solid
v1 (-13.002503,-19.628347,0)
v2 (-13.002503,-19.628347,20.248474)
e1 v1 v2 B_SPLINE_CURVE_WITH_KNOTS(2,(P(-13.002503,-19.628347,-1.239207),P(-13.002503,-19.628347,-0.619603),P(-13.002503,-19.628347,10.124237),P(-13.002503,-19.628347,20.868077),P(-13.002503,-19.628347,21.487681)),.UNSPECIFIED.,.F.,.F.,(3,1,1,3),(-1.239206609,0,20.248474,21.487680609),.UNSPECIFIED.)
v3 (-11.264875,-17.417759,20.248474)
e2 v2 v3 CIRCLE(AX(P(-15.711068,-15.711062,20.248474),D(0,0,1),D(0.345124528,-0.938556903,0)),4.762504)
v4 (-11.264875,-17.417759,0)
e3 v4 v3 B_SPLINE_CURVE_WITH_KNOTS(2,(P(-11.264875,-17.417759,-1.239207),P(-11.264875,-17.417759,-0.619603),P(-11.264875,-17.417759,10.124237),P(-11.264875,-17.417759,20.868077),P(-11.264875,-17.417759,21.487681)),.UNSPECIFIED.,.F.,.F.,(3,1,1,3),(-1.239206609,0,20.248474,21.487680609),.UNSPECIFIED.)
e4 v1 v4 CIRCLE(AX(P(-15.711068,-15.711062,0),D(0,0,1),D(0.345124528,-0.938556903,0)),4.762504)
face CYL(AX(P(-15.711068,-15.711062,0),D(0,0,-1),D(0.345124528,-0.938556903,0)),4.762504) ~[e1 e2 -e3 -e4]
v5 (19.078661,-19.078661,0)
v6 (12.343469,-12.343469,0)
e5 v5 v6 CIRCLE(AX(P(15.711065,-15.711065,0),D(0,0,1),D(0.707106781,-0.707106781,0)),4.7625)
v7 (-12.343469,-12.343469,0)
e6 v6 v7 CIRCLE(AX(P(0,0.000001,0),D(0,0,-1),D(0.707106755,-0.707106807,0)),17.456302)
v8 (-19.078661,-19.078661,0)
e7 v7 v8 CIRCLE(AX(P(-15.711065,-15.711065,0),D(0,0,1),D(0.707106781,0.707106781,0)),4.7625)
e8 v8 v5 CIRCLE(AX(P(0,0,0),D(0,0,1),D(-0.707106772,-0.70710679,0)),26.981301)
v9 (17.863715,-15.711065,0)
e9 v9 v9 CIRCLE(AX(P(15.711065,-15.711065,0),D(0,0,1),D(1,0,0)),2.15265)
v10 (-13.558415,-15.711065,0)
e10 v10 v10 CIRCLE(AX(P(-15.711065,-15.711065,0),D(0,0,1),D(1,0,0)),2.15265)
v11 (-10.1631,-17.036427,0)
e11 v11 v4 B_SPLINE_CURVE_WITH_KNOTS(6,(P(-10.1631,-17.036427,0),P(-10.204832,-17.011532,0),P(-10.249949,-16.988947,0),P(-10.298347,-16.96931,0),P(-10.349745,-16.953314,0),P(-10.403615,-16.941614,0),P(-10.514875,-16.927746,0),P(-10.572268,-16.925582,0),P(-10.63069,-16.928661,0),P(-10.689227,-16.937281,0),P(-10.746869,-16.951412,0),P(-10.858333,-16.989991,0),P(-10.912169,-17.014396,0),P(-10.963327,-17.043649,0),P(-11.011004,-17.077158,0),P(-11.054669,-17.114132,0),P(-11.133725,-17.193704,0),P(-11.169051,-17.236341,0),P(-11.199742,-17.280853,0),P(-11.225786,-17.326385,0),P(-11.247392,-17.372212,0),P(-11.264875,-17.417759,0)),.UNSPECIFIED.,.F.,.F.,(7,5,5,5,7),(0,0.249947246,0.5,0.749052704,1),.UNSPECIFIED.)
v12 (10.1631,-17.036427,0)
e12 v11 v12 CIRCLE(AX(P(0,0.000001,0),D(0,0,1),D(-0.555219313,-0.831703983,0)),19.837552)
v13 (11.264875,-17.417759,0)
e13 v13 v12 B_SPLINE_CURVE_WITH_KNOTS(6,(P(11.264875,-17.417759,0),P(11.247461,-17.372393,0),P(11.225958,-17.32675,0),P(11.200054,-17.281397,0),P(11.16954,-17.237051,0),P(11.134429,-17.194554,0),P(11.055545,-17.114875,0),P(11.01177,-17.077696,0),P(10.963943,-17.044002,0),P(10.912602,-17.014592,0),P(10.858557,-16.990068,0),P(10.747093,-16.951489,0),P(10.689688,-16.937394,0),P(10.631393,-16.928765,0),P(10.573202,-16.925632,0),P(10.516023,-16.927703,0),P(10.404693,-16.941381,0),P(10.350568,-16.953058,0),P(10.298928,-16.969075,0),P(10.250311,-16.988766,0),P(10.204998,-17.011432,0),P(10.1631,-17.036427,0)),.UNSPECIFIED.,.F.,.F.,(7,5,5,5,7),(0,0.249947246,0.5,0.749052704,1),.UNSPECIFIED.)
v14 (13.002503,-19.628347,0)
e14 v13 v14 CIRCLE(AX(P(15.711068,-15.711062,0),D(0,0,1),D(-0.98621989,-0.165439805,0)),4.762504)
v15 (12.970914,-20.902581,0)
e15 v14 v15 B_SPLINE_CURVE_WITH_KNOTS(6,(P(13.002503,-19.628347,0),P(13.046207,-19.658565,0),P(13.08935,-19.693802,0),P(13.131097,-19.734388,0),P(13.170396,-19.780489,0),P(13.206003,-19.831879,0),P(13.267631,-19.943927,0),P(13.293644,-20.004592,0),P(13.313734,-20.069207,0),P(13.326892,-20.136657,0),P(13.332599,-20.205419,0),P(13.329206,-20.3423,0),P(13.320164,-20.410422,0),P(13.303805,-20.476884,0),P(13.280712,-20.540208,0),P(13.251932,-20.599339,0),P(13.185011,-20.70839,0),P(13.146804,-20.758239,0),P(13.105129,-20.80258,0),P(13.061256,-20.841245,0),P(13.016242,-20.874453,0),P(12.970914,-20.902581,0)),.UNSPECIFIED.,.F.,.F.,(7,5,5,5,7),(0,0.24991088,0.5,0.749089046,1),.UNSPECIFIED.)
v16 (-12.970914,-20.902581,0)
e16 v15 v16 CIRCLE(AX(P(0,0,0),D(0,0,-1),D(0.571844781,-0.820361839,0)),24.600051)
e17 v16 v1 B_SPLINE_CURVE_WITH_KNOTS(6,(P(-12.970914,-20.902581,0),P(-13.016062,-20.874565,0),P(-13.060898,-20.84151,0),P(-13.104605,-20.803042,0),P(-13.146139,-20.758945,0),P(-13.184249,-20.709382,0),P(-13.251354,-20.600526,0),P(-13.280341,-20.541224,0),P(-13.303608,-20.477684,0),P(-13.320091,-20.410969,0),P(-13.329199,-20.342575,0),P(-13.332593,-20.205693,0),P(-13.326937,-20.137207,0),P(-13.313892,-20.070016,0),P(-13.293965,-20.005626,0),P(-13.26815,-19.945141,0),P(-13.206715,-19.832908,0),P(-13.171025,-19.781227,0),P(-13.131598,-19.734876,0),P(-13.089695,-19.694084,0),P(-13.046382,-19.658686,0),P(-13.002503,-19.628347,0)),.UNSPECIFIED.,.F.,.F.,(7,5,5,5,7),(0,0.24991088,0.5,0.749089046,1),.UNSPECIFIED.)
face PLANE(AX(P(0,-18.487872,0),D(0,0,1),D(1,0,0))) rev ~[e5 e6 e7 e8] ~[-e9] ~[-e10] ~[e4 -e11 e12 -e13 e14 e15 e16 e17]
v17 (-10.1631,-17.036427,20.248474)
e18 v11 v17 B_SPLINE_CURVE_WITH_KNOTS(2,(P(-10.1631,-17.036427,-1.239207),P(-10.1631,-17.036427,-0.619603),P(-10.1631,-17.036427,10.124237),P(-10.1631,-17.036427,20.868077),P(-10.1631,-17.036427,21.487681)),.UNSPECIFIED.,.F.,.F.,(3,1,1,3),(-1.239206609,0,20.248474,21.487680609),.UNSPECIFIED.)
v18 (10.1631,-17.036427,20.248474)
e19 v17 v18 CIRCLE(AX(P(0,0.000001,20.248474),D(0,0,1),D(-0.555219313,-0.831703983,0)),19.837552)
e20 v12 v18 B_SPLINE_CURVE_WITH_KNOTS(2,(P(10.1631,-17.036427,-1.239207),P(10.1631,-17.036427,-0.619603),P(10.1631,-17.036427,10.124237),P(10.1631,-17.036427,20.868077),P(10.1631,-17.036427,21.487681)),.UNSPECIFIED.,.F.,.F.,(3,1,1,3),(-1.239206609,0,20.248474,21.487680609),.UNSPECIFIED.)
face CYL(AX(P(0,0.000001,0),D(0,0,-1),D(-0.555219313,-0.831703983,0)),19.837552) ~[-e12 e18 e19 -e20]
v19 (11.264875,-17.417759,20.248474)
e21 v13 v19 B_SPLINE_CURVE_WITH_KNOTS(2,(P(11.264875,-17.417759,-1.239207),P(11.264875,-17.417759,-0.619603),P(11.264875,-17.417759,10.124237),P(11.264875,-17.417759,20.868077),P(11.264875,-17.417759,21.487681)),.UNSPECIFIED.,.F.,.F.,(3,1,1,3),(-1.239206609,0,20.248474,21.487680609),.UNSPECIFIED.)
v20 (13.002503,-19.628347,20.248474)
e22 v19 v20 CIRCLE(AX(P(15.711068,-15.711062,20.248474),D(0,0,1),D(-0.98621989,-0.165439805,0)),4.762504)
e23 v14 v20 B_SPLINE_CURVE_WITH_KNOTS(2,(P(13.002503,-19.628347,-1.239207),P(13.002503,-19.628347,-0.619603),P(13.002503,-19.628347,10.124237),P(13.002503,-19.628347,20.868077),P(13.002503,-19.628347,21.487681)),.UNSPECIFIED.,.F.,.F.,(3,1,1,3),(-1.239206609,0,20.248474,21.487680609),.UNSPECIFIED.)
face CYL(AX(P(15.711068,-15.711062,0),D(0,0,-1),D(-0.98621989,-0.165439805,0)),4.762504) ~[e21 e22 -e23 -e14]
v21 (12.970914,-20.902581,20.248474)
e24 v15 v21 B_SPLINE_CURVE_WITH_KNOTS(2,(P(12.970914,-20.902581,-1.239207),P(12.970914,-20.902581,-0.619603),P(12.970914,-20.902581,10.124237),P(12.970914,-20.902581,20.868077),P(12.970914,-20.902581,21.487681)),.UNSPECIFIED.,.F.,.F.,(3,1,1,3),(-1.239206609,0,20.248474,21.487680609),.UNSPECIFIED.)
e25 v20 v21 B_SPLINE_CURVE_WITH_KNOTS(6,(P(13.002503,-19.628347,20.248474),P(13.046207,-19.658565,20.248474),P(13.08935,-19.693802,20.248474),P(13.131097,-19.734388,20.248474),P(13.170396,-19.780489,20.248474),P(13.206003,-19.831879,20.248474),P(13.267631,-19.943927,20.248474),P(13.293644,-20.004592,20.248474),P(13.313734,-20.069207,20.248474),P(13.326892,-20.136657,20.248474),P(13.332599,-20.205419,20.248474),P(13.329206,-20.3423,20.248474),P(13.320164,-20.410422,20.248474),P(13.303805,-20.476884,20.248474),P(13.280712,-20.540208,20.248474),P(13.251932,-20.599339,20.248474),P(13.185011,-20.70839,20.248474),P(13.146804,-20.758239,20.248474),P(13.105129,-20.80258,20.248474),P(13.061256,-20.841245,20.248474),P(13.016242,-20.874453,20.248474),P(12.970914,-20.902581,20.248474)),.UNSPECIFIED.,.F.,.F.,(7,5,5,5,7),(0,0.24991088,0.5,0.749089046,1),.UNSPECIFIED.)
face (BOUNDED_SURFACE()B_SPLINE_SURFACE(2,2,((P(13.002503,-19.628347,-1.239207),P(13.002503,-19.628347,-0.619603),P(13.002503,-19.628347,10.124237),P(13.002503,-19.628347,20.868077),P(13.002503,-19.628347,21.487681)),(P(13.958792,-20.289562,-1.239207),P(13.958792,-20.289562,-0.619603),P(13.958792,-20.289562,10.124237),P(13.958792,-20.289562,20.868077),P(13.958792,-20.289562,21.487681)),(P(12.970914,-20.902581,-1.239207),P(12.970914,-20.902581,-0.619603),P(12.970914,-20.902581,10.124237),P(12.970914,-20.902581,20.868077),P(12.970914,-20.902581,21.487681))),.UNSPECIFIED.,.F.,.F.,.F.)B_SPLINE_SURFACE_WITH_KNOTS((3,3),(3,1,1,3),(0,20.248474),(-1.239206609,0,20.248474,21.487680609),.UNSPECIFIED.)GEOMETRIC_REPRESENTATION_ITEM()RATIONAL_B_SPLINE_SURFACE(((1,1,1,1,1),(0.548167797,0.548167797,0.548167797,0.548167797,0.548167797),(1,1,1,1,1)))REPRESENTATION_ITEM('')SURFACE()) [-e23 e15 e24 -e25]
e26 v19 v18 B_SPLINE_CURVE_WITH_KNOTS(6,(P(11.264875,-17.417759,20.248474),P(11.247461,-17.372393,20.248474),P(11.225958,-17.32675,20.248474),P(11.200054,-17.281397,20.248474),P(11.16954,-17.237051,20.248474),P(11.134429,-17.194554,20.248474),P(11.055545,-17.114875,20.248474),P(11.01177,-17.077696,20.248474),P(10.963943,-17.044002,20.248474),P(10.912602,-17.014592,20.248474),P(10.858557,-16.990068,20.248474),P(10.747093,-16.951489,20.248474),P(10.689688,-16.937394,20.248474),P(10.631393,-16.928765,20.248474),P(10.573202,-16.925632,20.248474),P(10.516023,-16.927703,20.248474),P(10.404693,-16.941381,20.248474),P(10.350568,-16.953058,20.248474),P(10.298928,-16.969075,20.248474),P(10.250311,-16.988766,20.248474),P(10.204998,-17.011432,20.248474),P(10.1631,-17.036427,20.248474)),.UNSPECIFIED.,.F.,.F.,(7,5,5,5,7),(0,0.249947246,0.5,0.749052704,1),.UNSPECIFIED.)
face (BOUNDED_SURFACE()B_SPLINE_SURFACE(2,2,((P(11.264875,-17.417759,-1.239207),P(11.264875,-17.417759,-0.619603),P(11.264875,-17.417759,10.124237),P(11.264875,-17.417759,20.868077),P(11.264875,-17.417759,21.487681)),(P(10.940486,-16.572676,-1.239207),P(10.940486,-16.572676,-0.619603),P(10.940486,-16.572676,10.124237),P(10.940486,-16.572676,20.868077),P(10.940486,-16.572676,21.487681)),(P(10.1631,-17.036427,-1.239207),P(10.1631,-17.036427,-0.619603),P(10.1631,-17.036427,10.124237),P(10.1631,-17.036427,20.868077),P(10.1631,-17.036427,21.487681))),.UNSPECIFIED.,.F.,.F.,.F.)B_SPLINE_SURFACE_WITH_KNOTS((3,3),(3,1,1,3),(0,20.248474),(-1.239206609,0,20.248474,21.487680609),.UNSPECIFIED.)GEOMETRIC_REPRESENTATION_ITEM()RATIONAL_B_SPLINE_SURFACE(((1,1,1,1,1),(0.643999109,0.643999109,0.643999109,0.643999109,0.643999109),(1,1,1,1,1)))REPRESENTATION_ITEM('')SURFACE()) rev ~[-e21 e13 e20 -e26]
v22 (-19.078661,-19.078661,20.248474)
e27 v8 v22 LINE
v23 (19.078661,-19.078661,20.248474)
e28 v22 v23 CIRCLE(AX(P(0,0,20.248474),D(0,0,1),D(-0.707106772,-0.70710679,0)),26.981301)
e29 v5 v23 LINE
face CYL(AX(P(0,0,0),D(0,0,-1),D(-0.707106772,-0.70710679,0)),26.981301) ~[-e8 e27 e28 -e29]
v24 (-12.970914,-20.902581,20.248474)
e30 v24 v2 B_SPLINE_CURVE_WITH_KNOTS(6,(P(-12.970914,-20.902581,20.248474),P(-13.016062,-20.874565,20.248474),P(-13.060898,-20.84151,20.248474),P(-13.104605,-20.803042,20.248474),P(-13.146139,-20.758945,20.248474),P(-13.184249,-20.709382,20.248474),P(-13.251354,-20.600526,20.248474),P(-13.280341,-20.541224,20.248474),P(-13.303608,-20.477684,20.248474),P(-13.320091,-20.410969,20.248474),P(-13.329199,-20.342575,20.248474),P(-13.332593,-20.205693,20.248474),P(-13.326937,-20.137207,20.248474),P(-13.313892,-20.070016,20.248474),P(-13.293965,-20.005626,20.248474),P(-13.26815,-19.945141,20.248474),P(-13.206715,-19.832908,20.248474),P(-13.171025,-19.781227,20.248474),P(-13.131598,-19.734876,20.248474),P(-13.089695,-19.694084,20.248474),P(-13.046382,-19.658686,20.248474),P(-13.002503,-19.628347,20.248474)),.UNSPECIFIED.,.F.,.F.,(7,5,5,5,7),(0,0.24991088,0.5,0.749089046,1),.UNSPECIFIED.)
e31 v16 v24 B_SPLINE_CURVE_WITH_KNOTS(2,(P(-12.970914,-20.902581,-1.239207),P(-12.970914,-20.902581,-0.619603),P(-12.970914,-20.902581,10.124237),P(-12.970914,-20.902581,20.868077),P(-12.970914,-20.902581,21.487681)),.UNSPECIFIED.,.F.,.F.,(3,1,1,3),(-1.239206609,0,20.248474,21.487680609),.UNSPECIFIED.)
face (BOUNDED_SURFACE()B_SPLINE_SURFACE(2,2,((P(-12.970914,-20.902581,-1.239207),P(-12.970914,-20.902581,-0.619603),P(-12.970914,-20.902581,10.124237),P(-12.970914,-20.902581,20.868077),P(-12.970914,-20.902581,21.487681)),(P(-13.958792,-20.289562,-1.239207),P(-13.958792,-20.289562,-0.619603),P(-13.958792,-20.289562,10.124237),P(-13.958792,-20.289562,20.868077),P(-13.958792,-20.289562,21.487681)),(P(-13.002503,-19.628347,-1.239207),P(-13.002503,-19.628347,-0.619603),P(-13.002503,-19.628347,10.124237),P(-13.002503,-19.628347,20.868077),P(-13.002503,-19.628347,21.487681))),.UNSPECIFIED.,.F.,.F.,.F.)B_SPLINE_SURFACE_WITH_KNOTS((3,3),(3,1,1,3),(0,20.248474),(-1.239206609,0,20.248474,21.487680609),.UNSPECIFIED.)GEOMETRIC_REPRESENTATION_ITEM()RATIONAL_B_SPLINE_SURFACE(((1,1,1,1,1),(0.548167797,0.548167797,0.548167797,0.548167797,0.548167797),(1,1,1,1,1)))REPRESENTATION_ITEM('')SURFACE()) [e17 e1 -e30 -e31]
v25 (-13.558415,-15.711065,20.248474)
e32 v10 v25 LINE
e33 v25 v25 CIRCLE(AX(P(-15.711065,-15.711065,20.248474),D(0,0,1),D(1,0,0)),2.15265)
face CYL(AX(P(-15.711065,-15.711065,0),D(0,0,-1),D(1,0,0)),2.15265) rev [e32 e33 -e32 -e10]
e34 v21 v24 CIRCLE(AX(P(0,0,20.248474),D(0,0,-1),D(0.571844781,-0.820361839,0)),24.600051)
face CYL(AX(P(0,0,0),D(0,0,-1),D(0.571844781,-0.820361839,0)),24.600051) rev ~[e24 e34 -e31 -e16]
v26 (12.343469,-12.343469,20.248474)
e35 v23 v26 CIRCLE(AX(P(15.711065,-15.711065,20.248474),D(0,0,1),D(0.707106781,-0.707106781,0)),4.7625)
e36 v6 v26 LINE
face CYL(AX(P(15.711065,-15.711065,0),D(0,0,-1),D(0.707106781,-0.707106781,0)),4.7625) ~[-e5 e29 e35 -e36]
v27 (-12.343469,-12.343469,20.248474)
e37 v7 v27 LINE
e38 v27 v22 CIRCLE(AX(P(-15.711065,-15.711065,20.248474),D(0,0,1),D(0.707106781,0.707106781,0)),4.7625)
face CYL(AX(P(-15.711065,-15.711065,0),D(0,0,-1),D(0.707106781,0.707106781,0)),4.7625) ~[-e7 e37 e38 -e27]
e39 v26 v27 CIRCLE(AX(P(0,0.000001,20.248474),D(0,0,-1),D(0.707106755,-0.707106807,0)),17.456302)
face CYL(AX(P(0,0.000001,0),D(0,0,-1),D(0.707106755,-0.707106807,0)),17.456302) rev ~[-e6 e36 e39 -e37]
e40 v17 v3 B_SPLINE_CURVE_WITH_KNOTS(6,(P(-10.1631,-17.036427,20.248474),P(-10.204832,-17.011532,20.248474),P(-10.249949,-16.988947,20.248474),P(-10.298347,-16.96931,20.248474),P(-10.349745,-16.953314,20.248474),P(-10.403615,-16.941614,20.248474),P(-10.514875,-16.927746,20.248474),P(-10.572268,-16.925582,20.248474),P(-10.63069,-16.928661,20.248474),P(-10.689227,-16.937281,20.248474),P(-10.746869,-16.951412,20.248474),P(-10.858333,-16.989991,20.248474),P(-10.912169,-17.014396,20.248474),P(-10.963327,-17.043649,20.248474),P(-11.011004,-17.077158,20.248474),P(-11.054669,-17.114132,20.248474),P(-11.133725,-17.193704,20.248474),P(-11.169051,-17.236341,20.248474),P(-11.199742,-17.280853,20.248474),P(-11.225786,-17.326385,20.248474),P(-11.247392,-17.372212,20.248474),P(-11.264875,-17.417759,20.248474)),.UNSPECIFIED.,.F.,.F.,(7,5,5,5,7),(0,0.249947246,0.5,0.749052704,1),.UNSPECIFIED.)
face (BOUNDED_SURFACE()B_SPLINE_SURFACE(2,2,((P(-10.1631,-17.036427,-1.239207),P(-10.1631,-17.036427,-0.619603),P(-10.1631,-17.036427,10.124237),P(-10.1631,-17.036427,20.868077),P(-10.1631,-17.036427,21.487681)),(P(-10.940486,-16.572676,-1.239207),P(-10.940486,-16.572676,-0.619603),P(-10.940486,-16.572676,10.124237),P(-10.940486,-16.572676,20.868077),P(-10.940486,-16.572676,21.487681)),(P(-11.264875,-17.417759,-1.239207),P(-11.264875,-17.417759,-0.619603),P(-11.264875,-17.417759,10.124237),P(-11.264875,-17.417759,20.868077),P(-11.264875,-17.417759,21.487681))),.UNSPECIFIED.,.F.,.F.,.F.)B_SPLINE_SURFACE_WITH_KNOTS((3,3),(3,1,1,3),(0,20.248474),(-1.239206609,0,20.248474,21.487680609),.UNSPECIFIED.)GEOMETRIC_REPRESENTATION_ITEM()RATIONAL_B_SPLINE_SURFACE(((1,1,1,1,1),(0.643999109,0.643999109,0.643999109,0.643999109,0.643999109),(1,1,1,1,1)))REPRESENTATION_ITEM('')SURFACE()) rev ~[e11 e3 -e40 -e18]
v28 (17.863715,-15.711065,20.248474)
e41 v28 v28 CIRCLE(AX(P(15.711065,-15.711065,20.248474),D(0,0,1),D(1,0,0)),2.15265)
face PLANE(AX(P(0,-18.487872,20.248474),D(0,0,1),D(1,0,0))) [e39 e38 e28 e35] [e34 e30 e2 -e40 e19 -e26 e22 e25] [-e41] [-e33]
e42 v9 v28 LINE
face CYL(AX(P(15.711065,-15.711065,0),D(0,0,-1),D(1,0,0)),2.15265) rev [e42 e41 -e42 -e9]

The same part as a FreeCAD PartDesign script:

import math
import FreeCAD as App
import Part
import Sketcher
from FreeCAD import Vector
Q = App.Units.Quantity


def edges_at(feature, points):
    """Names of the edges that pass closest to the given points."""
    edges = feature.Shape.Edges
    near = lambda p: min(range(len(edges)), key=lambda i: edges[i].distToShape(Part.Vertex(*p))[0])
    return sorted({f"Edge{near(p) + 1}" for p in points})

doc = App.newDocument("Part")
params = doc.addObject("Spreadsheet::Sheet", "Params")
for row, (alias, value) in enumerate([
    ("sketch1_radius", "0.1875 in"),
    ("sketch1_radius2", "0.1875001 in"),
    ("sketch1_radius3", "0.1875001 in"),
    ("pad1_length", "20.248474 mm"),
    ("fillet_radius", "0.03 in"),
], start=1):
    params.set(f"A{row}", alias)
    params.set(f"B{row}", "=" + value)
    params.setAlias(f"B{row}", alias)

body = doc.addObject("PartDesign::Body", "Body")

# Sketch on XY plane
sketch1 = body.newObject("Sketcher::SketchObject", "Sketch")
sketch1.AttachmentSupport = (doc.getObject("XY_Plane"), [""])
sketch1.MapMode = "FlatFace"
sketch1.addGeometry(Part.ArcOfCircle(Part.Circle(Vector(0, 0.000001, 0), Vector(0, 0, 1), 17.456302), math.radians(-134.999998), math.radians(-45.000002)), False)
sketch1.addGeometry(Part.ArcOfCircle(Part.Circle(Vector(-15.711065, -15.711065, 0), Vector(0, 0, 1), 4.7625), math.radians(45), math.radians(225)), False)
sketch1.addGeometry(Part.ArcOfCircle(Part.Circle(Vector(0, 0, 0), Vector(0, 0, 1), 26.981301), math.radians(-134.999999), math.radians(-45.000001)), False)
sketch1.addGeometry(Part.ArcOfCircle(Part.Circle(Vector(15.711065, -15.711065, 0), Vector(0, 0, 1), 4.7625), math.radians(-45), math.radians(135)), False)
sketch1.addGeometry(Part.ArcOfCircle(Part.Circle(Vector(15.711068, -15.711062, 0), Vector(0, 0, 1), 4.762504), math.radians(-170.477215), math.radians(-110.189398)), False)
sketch1.addGeometry(Part.ArcOfCircle(Part.Circle(Vector(0, 0, 0), Vector(0, 0, 1), 24.600051), math.radians(-124.878968), math.radians(-55.121032)), False)
sketch1.addGeometry(Part.ArcOfCircle(Part.Circle(Vector(-15.711068, -15.711062, 0), Vector(0, 0, 1), 4.762504), math.radians(-69.810602), math.radians(-9.522785)), False)
sketch1.addGeometry(Part.ArcOfCircle(Part.Circle(Vector(0, 0.000001, 0), Vector(0, 0, 1), 19.837552), math.radians(-123.725822), math.radians(-56.274178)), False)
sketch1.addGeometry(Part.Circle(Vector(-15.711065, -15.711065, 0), Vector(0, 0, 1), 2.15265), False)
sketch1.addGeometry(Part.Circle(Vector(15.711065, -15.711065, 0), Vector(0, 0, 1), 2.15265), False)
sketch1.addConstraint(Sketcher.Constraint("Coincident", 0, 1, 1, 1))
sketch1.addConstraint(Sketcher.Constraint("Coincident", 1, 2, 2, 1))
sketch1.addConstraint(Sketcher.Constraint("Coincident", 2, 2, 3, 1))
sketch1.addConstraint(Sketcher.Constraint("Coincident", 3, 2, 0, 2))
sketch1.addConstraint(Sketcher.Constraint("Coincident", 4, 2, 5, 2))
sketch1.addConstraint(Sketcher.Constraint("Coincident", 5, 1, 6, 1))
sketch1.addConstraint(Sketcher.Constraint("Coincident", 6, 2, 7, 1))
sketch1.addConstraint(Sketcher.Constraint("Coincident", 7, 2, 4, 1))
sketch1.addConstraint(Sketcher.Constraint("Coincident", 0, 3, -1, 1))
sketch1.addConstraint(Sketcher.Constraint("Coincident", 2, 3, -1, 1))
sketch1.addConstraint(Sketcher.Constraint("Coincident", 5, 3, -1, 1))
sketch1.addConstraint(Sketcher.Constraint("Coincident", 7, 3, -1, 1))
sketch1.addConstraint(Sketcher.Constraint("Coincident", 4, 3, 3, 3))
sketch1.addConstraint(Sketcher.Constraint("Coincident", 6, 3, 1, 3))
sketch1.addConstraint(Sketcher.Constraint("Coincident", 8, 3, 1, 3))
sketch1.addConstraint(Sketcher.Constraint("Coincident", 9, 3, 3, 3))
sketch1.addConstraint(Sketcher.Constraint("Radius", 1, Q("0.1875 in")))
sketch1.addConstraint(Sketcher.Constraint("Radius", 4, Q("0.1875001 in")))
sketch1.addConstraint(Sketcher.Constraint("Radius", 6, Q("0.1875001 in")))
sketch1.addConstraint(Sketcher.Constraint("Diameter", 8, Q("0.1695 in")))
sketch1.addConstraint(Sketcher.Constraint("Diameter", 9, Q("0.1695 in")))
sketch1.addConstraint(Sketcher.Constraint("Radius", 0, 17.456302))
sketch1.addConstraint(Sketcher.Constraint("Radius", 5, 24.600051))
sketch1.addConstraint(Sketcher.Constraint("Radius", 7, 19.837552))
sketch1.addConstraint(Sketcher.Constraint("DistanceX", 6, 3, 0, 1, 3.367599))
sketch1.addConstraint(Sketcher.Constraint("DistanceY", 1, 2, 6, 3, 3.367599))
sketch1.addConstraint(Sketcher.Constraint("DistanceY", 2, 2, 4, 3, 3.367599))
sketch1.addConstraint(Sketcher.Constraint("DistanceX", 3, 2, 4, 3, 3.367599))
sketch1.addConstraint(Sketcher.Constraint("DistanceY", 6, 2, 0, 1, 4.155501))
sketch1.addConstraint(Sketcher.Constraint("DistanceY", 7, 2, 3, 2, 4.155501))
sketch1.setExpression("Constraints[16]", "Params.sketch1_radius")
sketch1.setExpression("Constraints[17]", "Params.sketch1_radius2")
sketch1.setExpression("Constraints[18]", "Params.sketch1_radius3")
pad1 = body.newObject("PartDesign::Pad", "Pad")
pad1.Profile = sketch1
pad1.setExpression("Length", "Params.pad1_length")
doc.recompute()

fillet = body.newObject("PartDesign::Fillet", "Fillet")
fillet.Base = (pad1, edges_at(pad1, [
    (-11.014, -16.499, 10.124),
    (-14.067, -20.181, 10.124),
    (11.014, -16.499, 10.124),
    (14.067, -20.181, 10.124),
]))
fillet.setExpression("Radius", "Params.fillet_radius")

doc.recompute()
